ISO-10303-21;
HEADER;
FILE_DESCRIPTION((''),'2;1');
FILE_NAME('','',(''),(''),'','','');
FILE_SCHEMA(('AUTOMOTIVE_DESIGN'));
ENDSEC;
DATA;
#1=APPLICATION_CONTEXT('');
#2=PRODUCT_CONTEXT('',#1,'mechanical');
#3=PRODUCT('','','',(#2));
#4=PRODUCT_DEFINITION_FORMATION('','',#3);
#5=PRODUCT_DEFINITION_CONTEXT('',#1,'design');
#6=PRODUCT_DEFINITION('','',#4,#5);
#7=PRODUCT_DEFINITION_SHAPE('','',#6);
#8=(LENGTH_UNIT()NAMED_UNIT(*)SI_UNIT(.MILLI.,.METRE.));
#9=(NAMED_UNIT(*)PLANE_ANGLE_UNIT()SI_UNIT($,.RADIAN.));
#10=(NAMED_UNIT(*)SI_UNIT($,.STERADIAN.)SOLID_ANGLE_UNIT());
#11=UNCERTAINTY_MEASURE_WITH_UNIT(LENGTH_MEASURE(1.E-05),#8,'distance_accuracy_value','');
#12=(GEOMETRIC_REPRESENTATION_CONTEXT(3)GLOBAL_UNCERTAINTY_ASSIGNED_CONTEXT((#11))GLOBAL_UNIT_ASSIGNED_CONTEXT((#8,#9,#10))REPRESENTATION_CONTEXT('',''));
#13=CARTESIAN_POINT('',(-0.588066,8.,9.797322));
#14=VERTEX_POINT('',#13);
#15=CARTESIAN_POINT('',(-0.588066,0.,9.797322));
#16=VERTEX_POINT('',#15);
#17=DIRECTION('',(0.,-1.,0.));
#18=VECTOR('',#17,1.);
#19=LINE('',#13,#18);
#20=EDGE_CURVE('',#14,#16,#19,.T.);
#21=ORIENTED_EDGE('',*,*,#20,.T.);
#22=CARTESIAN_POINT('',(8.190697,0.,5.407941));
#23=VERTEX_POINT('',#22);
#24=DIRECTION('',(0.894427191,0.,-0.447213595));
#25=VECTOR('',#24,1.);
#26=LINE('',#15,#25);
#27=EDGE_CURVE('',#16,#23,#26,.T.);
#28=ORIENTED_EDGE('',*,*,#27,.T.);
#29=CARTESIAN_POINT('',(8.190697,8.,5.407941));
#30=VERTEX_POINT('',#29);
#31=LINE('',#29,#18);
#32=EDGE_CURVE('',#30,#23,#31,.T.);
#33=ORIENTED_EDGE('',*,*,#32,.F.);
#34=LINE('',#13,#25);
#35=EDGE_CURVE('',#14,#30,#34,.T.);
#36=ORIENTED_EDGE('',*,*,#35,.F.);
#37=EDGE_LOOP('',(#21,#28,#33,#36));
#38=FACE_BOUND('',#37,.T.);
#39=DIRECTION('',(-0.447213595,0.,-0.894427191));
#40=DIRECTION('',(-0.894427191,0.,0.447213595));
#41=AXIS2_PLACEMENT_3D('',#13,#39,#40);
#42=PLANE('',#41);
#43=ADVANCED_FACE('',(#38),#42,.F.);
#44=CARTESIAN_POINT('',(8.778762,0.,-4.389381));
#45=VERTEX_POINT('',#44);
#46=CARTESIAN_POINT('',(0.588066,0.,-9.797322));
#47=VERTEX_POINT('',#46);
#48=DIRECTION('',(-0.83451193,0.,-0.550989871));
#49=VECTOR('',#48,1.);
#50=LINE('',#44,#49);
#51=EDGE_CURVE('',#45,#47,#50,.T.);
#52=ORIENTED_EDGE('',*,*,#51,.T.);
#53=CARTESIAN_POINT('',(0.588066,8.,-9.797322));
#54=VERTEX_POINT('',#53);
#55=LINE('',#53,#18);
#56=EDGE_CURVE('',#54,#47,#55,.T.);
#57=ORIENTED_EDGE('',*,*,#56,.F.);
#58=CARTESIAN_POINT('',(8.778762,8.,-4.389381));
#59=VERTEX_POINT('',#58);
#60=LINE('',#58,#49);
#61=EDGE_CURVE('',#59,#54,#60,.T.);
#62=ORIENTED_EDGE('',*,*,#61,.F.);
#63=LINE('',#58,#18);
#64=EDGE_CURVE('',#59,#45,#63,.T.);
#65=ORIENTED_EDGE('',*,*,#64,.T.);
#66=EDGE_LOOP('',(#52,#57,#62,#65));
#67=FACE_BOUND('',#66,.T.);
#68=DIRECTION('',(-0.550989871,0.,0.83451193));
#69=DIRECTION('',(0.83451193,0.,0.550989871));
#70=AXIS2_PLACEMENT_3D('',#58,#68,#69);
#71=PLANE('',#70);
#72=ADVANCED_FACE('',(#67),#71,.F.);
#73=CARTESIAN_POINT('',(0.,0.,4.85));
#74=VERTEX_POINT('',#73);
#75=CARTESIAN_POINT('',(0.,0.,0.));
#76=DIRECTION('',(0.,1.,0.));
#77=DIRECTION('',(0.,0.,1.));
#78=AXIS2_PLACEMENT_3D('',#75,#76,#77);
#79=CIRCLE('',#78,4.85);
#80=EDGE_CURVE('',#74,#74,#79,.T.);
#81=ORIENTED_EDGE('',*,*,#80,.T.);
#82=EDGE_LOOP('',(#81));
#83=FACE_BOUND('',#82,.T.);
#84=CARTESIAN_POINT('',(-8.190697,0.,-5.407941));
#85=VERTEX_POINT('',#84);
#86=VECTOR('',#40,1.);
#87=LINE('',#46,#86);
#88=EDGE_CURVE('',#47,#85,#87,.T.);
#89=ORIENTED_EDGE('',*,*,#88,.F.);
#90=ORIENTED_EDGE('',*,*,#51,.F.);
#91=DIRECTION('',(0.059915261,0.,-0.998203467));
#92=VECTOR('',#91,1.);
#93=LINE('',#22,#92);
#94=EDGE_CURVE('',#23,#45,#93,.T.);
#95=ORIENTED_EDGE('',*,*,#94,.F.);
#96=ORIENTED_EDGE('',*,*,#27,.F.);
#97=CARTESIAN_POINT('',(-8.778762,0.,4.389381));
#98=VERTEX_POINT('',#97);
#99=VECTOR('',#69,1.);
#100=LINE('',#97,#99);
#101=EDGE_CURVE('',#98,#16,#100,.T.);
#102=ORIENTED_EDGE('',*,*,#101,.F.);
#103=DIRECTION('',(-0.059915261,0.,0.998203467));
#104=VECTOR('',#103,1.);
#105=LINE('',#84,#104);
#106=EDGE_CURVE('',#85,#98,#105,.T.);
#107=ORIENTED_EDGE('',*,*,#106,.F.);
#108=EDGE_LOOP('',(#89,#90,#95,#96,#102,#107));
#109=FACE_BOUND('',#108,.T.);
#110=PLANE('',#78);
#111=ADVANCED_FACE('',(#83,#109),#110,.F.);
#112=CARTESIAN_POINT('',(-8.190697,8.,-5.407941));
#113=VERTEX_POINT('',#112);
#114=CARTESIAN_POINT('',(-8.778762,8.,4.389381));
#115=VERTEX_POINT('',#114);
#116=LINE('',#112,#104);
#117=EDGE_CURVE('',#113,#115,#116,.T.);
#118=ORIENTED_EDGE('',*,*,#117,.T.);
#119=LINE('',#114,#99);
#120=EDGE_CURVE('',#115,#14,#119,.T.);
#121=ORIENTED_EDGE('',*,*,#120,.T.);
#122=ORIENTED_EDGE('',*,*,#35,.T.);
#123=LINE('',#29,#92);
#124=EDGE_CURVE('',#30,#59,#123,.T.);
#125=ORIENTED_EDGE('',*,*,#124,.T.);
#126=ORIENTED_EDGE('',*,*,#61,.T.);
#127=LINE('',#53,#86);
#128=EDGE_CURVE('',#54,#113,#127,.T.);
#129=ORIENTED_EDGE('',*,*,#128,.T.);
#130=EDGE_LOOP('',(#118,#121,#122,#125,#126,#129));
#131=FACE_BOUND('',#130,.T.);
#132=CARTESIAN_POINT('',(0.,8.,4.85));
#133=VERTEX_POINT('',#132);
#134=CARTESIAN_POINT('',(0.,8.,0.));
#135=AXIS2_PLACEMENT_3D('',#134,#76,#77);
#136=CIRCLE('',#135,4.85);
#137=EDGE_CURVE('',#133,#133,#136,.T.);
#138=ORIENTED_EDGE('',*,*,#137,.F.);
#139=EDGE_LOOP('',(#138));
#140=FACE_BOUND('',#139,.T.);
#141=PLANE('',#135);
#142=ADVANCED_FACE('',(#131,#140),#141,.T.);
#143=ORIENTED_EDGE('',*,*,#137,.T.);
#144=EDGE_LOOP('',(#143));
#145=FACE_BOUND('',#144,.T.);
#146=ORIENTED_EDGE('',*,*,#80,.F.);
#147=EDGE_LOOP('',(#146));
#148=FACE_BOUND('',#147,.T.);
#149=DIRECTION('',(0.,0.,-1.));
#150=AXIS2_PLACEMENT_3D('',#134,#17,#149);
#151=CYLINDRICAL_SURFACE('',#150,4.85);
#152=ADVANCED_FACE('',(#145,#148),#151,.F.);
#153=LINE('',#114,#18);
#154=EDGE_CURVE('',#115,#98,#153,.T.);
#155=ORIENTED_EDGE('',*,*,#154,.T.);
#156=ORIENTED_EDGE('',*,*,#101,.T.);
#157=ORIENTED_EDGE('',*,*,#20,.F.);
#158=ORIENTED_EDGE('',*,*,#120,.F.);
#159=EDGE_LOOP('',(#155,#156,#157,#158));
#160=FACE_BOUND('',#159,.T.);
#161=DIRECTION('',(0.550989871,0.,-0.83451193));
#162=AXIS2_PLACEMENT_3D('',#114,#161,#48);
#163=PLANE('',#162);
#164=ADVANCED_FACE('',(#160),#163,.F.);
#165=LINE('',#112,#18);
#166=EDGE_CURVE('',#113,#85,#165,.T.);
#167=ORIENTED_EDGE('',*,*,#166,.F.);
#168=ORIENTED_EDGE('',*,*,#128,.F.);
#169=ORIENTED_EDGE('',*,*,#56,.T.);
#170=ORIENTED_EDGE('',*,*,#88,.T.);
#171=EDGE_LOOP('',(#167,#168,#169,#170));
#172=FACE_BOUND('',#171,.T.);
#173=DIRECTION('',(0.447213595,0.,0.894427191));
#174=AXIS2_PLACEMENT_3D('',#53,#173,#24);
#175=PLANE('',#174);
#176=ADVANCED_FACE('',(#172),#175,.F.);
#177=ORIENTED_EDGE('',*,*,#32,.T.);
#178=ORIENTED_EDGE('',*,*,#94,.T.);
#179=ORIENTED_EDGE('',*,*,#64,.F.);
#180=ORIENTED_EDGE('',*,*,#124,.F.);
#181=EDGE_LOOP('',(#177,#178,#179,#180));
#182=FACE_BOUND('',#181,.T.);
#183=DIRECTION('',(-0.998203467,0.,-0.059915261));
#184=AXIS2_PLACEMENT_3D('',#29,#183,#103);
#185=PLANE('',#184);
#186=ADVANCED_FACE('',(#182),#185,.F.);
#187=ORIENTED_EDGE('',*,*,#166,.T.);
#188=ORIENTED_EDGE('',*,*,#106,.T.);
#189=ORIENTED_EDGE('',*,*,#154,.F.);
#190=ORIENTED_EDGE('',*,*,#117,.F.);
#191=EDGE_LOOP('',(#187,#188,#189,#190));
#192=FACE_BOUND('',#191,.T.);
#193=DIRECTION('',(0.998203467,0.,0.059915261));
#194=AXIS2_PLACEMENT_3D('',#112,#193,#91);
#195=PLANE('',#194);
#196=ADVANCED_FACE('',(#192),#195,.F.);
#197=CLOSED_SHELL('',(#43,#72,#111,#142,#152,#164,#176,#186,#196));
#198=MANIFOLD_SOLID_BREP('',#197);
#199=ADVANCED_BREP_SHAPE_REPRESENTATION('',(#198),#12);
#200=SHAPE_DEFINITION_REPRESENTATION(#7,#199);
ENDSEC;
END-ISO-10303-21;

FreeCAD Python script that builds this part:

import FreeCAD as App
import Part
import Sketcher
from FreeCAD import Vector
Q = App.Units.Quantity


def add_polygon(sketch, points):
    """Adds a closed chain of lines whose ends are joined by coincident constraints."""
    first, n = sketch.GeometryCount, len(points)
    for a, b in zip(points, points[1:] + points[:1]):
        sketch.addGeometry(Part.LineSegment(App.Vector(*a, 0), App.Vector(*b, 0)), False)
    for i in range(n):
        sketch.addConstraint(Sketcher.Constraint("Coincident", first + i, 2, first + (i + 1) % n, 1))

doc = App.newDocument("Part")
params = doc.addObject("Spreadsheet::Sheet", "Params")
for row, (alias, value) in enumerate([
    ("sketch1_diameter", "9.7 mm"),
    ("pad1_length", "8 mm"),
], start=1):
    params.set(f"A{row}", alias)
    params.set(f"B{row}", "=" + value)
    params.setAlias(f"B{row}", alias)

body = doc.addObject("PartDesign::Body", "Body")

sketch1 = body.newObject("Sketcher::SketchObject", "Sketch")
sketch1.AttachmentSupport = (doc.getObject("XZ_Plane"), [""])
sketch1.MapMode = "FlatFace"
add_polygon(sketch1, [(-8.8, 4.4), (-0.6, 9.8), (8.2, 5.4), (8.8, -4.4), (0.6, -9.8), (-8.2, -5.4)])
sketch1.addGeometry(Part.Circle(Vector(0, 0, 0), Vector(0, 0, 1), 4.8), False)
sketch1.addConstraint([
    Sketcher.Constraint("Coincident", 6, 3, -1, 1),
    Sketcher.Constraint("Symmetric", 0, 2, 3, 2, -1, 1),
    Sketcher.Constraint("Symmetric", 1, 2, 4, 2, -1, 1),
    Sketcher.Constraint("Symmetric", 2, 2, 5, 2, -1, 1),
    Sketcher.Constraint("Equal", 0, 1),
    Sketcher.Constraint("Equal", 1, 2),
    Sketcher.Constraint("Diameter", 6, Q("9.7 mm")),
    Sketcher.Constraint("DistanceY", -1, 1, 0, 2, Q("9.797322 mm")),
    Sketcher.Constraint("DistanceY", -1, 1, 1, 2, Q("5.407941 mm")),
    Sketcher.Constraint("DistanceY", 2, 2, -1, 1, Q("4.389381 mm")),
    Sketcher.Constraint("DistanceX", 3, 2, 1, 2, Q("7.602631 mm")),
])
sketch1.setExpression("Constraints[12]", "Params.sketch1_diameter")
pad1 = body.newObject("PartDesign::Pad", "Pad")
pad1.Profile = sketch1
pad1.setExpression("Length", "Params.pad1_length")
pad1.Reversed = True

doc.recompute()
